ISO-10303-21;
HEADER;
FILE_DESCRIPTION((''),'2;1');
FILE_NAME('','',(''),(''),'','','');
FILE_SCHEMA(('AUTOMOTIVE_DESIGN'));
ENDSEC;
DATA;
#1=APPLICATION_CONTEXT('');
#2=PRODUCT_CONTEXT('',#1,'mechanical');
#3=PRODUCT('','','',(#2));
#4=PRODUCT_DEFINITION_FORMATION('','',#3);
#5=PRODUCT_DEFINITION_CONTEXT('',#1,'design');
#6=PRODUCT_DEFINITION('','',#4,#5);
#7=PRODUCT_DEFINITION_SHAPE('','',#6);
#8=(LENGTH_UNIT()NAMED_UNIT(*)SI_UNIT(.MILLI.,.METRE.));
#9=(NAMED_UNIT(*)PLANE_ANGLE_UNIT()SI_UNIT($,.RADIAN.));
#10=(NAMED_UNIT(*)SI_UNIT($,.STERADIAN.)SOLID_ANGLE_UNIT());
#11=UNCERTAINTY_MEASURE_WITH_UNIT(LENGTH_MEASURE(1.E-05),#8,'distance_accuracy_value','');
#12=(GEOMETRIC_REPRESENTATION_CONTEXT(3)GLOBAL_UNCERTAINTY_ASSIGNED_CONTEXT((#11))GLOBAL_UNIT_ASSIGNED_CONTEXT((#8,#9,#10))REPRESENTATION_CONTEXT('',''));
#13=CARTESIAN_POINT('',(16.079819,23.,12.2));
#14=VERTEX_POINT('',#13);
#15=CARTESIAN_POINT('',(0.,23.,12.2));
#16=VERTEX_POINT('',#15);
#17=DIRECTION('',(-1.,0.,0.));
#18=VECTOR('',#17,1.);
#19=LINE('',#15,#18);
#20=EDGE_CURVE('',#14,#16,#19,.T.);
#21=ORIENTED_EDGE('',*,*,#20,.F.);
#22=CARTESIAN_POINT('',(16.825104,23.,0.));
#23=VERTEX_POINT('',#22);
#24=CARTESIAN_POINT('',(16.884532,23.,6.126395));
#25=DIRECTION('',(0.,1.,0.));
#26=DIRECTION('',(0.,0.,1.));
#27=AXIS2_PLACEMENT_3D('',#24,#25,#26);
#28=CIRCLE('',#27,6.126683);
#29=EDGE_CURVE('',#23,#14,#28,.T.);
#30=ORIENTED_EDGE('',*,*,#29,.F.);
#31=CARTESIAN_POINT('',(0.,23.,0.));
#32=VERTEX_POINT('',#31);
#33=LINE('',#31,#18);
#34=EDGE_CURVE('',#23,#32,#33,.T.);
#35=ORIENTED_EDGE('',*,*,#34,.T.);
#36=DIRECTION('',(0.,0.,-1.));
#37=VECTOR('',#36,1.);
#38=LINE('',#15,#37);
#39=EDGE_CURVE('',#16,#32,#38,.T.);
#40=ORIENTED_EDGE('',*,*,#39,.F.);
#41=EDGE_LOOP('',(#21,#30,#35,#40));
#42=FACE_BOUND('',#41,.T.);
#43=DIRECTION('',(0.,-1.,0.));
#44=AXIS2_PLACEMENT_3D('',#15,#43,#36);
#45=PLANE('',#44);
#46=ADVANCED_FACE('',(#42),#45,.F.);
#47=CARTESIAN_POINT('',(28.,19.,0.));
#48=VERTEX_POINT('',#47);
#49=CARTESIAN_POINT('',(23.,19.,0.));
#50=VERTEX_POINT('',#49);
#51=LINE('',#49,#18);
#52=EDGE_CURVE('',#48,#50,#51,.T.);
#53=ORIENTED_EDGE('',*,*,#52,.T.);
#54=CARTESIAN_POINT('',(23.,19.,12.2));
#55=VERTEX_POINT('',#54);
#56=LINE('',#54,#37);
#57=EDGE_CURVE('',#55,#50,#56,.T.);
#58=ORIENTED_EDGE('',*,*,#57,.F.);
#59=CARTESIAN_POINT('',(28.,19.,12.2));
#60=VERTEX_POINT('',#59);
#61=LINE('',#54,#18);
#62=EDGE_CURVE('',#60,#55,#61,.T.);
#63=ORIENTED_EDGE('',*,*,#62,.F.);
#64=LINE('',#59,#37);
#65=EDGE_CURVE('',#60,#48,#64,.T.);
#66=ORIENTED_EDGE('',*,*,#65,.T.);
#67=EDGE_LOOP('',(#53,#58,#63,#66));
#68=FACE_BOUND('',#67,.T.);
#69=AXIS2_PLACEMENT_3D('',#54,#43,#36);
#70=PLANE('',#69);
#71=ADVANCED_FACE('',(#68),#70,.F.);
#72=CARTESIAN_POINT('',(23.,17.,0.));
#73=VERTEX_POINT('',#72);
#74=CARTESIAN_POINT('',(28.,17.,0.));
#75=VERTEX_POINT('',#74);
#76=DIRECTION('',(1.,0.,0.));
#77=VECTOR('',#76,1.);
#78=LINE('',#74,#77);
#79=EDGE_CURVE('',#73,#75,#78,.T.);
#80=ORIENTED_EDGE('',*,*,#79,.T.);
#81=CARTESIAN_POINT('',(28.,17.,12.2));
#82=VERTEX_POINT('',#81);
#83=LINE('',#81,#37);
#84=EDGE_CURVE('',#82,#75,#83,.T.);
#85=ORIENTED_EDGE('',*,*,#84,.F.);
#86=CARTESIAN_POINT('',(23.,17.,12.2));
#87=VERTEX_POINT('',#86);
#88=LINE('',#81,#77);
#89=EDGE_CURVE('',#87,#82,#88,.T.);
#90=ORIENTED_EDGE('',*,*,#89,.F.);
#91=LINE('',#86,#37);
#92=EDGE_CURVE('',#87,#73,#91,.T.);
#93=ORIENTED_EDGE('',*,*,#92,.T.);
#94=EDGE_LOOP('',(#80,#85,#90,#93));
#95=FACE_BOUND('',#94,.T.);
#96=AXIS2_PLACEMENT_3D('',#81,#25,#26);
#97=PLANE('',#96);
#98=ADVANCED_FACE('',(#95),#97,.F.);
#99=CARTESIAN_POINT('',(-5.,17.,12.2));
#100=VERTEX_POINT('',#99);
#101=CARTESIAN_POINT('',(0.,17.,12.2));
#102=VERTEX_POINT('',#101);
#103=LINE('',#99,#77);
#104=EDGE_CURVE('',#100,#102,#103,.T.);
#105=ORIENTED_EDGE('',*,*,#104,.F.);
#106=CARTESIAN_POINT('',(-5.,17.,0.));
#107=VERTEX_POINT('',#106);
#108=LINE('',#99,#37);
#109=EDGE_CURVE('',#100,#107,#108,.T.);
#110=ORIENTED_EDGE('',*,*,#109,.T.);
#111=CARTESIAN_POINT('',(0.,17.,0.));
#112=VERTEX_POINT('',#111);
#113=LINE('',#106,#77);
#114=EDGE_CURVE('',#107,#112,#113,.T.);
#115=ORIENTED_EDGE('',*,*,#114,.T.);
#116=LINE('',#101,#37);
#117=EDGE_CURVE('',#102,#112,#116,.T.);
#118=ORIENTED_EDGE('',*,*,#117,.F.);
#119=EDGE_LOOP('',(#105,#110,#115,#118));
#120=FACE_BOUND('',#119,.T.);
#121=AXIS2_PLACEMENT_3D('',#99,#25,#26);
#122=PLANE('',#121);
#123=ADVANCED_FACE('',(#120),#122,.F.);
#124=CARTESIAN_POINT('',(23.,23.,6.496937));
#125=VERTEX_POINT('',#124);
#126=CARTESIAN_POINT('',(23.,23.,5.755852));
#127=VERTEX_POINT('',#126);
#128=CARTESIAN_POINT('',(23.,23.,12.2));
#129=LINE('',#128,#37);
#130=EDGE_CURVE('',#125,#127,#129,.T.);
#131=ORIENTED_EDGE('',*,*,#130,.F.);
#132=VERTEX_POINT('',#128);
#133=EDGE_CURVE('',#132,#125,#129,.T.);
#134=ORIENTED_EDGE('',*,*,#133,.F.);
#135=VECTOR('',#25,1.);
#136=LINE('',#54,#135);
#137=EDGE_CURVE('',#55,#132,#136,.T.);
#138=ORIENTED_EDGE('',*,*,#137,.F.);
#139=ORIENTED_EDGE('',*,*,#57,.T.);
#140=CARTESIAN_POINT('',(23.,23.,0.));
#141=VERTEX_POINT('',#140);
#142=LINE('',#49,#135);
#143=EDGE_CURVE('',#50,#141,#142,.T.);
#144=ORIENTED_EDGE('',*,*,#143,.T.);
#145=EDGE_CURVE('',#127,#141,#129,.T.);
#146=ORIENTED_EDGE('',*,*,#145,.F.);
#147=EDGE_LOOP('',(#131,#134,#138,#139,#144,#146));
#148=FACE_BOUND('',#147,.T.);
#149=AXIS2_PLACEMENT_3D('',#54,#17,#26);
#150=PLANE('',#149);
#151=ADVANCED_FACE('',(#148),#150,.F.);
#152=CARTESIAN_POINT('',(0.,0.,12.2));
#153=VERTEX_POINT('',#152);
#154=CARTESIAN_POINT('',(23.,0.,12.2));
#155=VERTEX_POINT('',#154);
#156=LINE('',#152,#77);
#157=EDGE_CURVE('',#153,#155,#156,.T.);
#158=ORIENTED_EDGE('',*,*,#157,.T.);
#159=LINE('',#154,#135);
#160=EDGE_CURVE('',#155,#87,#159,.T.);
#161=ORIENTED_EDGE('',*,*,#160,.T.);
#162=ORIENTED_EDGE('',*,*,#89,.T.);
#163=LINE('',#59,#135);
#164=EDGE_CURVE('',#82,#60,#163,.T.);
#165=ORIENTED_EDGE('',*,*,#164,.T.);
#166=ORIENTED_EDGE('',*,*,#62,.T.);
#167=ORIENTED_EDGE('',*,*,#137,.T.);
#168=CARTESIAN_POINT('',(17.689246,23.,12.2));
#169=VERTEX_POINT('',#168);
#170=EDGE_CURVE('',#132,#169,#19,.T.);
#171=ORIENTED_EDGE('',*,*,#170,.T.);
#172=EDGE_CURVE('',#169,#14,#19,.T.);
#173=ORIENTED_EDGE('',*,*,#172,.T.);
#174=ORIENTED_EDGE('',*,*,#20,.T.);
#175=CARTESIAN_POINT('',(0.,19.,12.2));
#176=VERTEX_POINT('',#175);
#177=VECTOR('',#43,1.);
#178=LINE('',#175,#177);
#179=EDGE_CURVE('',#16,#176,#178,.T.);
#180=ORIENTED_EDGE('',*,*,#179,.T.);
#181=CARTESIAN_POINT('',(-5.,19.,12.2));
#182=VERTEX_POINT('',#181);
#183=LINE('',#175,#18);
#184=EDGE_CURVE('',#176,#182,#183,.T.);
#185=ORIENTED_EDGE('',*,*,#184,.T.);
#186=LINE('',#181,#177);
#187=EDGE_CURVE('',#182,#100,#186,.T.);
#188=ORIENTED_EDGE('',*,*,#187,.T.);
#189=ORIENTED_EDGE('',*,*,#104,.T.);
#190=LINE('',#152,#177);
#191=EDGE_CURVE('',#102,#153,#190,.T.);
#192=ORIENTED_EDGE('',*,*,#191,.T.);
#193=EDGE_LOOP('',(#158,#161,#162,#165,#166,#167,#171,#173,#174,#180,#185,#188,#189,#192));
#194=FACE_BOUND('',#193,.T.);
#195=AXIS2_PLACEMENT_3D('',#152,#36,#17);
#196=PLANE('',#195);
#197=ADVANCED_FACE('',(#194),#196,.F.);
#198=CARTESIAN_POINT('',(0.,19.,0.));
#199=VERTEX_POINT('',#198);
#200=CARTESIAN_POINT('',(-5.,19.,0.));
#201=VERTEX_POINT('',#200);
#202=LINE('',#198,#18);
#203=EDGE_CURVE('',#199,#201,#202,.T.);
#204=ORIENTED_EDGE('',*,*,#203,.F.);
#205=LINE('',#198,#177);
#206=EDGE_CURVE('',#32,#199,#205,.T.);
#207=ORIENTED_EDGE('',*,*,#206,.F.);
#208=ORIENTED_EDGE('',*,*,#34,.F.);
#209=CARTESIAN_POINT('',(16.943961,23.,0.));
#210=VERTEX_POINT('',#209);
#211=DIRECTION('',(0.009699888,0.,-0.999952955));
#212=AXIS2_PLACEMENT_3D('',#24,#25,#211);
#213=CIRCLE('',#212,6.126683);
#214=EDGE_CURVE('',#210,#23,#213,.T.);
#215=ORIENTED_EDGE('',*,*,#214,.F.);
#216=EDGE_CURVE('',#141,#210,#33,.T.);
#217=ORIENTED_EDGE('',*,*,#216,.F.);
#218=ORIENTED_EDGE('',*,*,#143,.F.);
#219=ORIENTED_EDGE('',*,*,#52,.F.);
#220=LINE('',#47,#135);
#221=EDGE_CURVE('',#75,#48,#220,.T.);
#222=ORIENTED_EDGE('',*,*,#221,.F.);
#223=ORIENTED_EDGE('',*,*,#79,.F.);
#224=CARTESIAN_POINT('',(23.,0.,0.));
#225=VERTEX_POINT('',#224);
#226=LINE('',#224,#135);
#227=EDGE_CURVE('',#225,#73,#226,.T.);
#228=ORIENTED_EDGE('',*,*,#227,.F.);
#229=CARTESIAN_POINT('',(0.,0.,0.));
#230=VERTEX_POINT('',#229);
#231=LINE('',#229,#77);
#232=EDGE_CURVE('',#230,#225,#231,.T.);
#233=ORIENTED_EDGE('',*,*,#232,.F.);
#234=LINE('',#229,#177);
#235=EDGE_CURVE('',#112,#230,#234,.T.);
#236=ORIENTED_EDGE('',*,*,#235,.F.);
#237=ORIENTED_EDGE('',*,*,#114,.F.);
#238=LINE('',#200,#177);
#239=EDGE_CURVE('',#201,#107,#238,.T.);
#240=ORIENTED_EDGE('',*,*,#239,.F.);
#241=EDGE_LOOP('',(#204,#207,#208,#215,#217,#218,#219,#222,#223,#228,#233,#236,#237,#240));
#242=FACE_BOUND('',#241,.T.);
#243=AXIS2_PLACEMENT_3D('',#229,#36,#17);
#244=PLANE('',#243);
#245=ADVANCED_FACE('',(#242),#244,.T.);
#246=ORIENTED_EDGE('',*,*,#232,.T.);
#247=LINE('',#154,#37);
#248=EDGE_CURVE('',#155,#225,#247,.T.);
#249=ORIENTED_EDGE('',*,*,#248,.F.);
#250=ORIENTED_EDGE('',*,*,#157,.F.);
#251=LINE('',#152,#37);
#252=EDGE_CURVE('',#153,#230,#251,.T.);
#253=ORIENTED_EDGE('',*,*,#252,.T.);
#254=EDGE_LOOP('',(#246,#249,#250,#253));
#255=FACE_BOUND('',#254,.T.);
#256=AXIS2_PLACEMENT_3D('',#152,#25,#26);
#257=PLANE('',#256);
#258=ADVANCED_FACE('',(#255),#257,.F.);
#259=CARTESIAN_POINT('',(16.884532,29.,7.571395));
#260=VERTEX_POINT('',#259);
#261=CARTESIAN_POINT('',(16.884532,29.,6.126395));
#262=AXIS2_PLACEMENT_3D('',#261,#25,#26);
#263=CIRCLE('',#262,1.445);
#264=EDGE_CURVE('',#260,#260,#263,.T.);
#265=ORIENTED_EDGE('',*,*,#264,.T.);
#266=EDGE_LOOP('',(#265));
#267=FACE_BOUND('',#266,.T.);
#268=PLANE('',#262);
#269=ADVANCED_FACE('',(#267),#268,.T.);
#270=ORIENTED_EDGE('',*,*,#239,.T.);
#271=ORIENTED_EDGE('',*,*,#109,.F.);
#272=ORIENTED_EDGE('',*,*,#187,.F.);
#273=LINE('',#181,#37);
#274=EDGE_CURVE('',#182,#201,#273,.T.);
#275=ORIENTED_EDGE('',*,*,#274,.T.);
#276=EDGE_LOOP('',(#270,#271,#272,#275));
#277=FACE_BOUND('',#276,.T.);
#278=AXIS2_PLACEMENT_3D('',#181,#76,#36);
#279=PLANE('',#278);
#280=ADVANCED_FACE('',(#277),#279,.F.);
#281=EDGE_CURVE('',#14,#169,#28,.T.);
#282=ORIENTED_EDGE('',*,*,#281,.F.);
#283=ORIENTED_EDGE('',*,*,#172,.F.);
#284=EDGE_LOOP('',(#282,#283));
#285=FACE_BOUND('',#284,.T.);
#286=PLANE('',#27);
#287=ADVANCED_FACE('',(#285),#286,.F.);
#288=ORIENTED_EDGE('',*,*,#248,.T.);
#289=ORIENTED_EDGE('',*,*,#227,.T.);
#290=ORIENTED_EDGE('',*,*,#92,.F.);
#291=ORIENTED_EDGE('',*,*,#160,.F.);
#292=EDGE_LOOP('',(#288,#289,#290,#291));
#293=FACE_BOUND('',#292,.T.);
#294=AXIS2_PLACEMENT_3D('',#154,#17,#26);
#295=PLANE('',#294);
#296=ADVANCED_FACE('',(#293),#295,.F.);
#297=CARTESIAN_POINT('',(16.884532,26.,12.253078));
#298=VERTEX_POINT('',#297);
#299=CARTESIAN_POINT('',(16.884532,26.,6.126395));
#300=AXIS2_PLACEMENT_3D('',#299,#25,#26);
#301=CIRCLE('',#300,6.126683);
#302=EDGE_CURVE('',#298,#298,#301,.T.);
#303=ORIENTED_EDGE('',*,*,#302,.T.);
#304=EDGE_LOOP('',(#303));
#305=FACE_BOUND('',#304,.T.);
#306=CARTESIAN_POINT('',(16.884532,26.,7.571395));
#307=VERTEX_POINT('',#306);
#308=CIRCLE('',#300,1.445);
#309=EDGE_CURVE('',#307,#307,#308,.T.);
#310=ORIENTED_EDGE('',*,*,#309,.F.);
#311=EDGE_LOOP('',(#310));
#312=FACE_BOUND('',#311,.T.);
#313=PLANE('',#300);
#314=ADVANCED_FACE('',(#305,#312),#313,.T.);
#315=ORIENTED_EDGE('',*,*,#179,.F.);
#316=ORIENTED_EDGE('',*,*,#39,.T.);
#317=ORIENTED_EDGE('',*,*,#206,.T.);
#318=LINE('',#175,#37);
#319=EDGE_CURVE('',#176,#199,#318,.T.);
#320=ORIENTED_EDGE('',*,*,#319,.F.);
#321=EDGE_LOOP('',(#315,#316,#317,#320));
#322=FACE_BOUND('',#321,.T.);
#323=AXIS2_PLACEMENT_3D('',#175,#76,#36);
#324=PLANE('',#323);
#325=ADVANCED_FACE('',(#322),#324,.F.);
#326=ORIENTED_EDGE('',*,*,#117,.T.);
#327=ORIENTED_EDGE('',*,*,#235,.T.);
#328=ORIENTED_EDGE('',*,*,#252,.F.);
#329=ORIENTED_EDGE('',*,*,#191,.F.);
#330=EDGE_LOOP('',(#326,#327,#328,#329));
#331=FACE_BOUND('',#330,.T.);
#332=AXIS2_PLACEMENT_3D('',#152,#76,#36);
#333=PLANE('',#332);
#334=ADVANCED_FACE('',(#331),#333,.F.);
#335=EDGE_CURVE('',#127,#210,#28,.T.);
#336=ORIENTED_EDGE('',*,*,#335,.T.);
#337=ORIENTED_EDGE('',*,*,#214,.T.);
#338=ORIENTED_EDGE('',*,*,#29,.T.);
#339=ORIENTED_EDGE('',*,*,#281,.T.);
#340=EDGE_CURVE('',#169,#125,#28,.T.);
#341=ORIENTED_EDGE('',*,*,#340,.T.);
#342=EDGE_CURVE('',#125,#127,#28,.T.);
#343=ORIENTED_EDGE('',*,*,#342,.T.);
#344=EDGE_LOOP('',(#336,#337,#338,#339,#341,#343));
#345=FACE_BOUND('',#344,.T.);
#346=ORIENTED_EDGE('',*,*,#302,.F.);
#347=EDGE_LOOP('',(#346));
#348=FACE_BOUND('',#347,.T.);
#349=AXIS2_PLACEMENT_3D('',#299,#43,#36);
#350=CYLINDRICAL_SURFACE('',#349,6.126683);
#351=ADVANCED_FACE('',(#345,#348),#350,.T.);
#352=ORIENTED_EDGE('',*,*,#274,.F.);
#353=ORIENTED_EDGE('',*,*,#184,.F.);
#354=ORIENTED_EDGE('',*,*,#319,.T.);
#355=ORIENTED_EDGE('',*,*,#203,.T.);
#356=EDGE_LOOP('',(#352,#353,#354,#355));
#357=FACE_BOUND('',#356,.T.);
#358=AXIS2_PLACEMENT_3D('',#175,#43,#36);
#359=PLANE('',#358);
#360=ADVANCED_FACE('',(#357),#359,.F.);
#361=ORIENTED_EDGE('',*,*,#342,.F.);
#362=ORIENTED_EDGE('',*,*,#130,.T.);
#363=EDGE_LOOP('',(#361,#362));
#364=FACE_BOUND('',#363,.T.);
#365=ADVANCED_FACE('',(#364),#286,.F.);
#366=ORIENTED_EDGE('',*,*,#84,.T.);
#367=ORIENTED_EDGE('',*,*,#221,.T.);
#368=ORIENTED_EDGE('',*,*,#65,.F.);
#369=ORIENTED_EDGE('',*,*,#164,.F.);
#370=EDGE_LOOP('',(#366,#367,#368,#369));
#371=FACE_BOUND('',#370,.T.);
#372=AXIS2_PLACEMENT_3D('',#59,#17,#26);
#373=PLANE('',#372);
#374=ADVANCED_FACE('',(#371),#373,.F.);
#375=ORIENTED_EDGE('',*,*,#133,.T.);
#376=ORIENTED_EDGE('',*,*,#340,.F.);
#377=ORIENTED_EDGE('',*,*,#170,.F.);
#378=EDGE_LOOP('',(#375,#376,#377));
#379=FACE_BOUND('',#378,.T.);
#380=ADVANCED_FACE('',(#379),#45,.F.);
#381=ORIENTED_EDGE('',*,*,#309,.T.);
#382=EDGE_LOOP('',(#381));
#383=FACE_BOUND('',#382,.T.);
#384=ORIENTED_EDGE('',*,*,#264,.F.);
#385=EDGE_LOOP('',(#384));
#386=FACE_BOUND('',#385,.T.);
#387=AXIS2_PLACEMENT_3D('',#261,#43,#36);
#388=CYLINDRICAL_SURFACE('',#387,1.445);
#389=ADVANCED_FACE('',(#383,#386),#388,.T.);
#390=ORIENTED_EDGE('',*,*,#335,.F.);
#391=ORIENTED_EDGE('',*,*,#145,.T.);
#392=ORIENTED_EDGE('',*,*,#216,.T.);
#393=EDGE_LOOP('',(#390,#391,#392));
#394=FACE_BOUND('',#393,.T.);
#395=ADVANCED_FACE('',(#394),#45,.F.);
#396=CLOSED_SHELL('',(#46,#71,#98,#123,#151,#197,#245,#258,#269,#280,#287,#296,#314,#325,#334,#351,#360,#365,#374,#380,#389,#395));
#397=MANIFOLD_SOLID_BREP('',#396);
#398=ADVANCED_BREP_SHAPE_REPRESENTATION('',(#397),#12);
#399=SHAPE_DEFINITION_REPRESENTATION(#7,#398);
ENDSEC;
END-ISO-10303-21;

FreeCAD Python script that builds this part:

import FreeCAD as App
import Part
import Sketcher
Q = App.Units.Quantity


def add_polygon(sketch, points):
    """Adds a closed chain of lines whose ends are joined by coincident constraints."""
    first, n = sketch.GeometryCount, len(points)
    for a, b in zip(points, points[1:] + points[:1]):
        sketch.addGeometry(Part.LineSegment(App.Vector(*a, 0), App.Vector(*b, 0)), False)
    for i in range(n):
        sketch.addConstraint(Sketcher.Constraint("Coincident", first + i, 2, first + (i + 1) % n, 1))

doc = App.newDocument("Part")
body = doc.addObject("PartDesign::Body", "Body")

# Sketch on XY plane
sketch1 = body.newObject("Sketcher::SketchObject", "Sketch")
sketch1.AttachmentSupport = (doc.getObject("XY_Plane"), [""])
sketch1.MapMode = "FlatFace"
add_polygon(sketch1, [(0, 0), (23, 0), (23, 17), (28, 17), (28, 19), (23, 19), (23, 23), (0, 23), (0, 19), (-5, 19), (-5, 17), (0, 17)])  # lines 0-11
sketch1.addConstraint(Sketcher.Constraint("Horizontal", 0))
sketch1.addConstraint(Sketcher.Constraint("Vertical", 1))
sketch1.addConstraint(Sketcher.Constraint("Horizontal", 2))
sketch1.addConstraint(Sketcher.Constraint("Vertical", 3))
sketch1.addConstraint(Sketcher.Constraint("Horizontal", 4))
sketch1.addConstraint(Sketcher.Constraint("Vertical", 5))
sketch1.addConstraint(Sketcher.Constraint("Horizontal", 6))
sketch1.addConstraint(Sketcher.Constraint("Vertical", 7))
sketch1.addConstraint(Sketcher.Constraint("Horizontal", 8))
sketch1.addConstraint(Sketcher.Constraint("Vertical", 9))
sketch1.addConstraint(Sketcher.Constraint("Horizontal", 10))
sketch1.addConstraint(Sketcher.Constraint("Vertical", 11))
sketch1.addConstraint(Sketcher.Constraint("Coincident", 11, 2, -1, 1))
sketch1.addConstraint(Sketcher.Constraint("PointOnObject", 6, 2, -2))
sketch1.addConstraint(Sketcher.Constraint("Horizontal", 4, 2, 7, 2))
sketch1.addConstraint(Sketcher.Constraint("Horizontal", 2, 2, 9, 2))
sketch1.addConstraint(Sketcher.Constraint("Vertical", 1, 2, 4, 2))
sketch1.addConstraint(Sketcher.Constraint("Equal", 4, 8))
sketch1.addConstraint(Sketcher.Constraint("DistanceX", 0, 1, 0, 2, Q("23 mm")))
sketch1.addConstraint(Sketcher.Constraint("DistanceX", 2, 1, 2, 2, Q("5 mm")))
sketch1.addConstraint(Sketcher.Constraint("DistanceY", 1, 1, 1, 2, Q("17 mm")))
sketch1.addConstraint(Sketcher.Constraint("DistanceY", 3, 1, 3, 2, Q("2 mm")))
sketch1.addConstraint(Sketcher.Constraint("DistanceY", 5, 1, 5, 2, Q("4 mm")))
pad1 = body.newObject("PartDesign::Pad", "Pad")
pad1.Profile = sketch1
pad1.Length = 12.2

# Sketch on XZ plane
sketch2 = body.newObject("Sketcher::SketchObject", "Sketch001")
sketch2.AttachmentSupport = (doc.getObject("XZ_Plane"), [""])
sketch2.MapMode = "FlatFace"
sketch2.AttachmentOffset = App.Placement(App.Vector(0, 0, -23), App.Rotation())
sketch2.addGeometry(Part.Circle(App.Vector(17, 6, 0), App.Vector(0, 0, 1), 6), False)
sketch2.addConstraint(Sketcher.Constraint("Diameter", 0, Q("12.253366 mm")))
sketch2.addConstraint(Sketcher.Constraint("DistanceX", -1, 1, 0, 3, Q("16.884532 mm")))
sketch2.addConstraint(Sketcher.Constraint("DistanceY", -1, 1, 0, 3, Q("6.126395 mm")))
pad2 = body.newObject("PartDesign::Pad", "Pad001")
pad2.Profile = sketch2
pad2.Length = 3
pad2.Reversed = True

# Sketch on XZ plane
sketch3 = body.newObject("Sketcher::SketchObject", "Sketch002")
sketch3.AttachmentSupport = (doc.getObject("XZ_Plane"), [""])
sketch3.MapMode = "FlatFace"
sketch3.AttachmentOffset = App.Placement(App.Vector(0, 0, -26), App.Rotation())
sketch3.addGeometry(Part.Circle(App.Vector(16.9, 6.1, 0), App.Vector(0, 0, 1), 1.4), False)
sketch3.addConstraint(Sketcher.Constraint("Diameter", 0, Q("2.89 mm")))
sketch3.addConstraint(Sketcher.Constraint("DistanceX", -1, 1, 0, 3, Q("16.884532 mm")))
sketch3.addConstraint(Sketcher.Constraint("DistanceY", -1, 1, 0, 3, Q("6.126395 mm")))
pad3 = body.newObject("PartDesign::Pad", "Pad002")
pad3.Profile = sketch3
pad3.Length = 3
pad3.Reversed = True

doc.recompute()
